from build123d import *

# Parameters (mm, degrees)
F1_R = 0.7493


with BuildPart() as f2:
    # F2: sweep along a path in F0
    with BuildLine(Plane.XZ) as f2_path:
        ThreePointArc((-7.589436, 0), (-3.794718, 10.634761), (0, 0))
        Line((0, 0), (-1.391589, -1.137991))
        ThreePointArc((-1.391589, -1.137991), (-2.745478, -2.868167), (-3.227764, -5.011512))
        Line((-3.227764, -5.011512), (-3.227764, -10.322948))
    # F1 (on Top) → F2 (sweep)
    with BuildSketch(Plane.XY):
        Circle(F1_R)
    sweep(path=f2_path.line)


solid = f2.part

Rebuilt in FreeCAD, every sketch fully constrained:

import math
import FreeCAD as App
import Part
import Sketcher
Q = App.Units.Quantity

doc = App.newDocument("Part")
body = doc.addObject("PartDesign::Body", "Body")

# Sketch on XY plane
sketch1 = body.newObject("Sketcher::SketchObject", "Sketch")
sketch1.AttachmentSupport = (doc.getObject("XY_Plane"), [""])
sketch1.MapMode = "FlatFace"
sketch1.addGeometry(Part.Circle(App.Vector(0, 0, 0), App.Vector(0, 0, 1), 0.7493), False)
sketch1.addConstraint([
    Sketcher.Constraint("Coincident", 0, 3, -1, 1),
    Sketcher.Constraint("Diameter", 0, Q("0.059 in")),
])

# Sketch on XZ plane
sketch2 = body.newObject("Sketcher::SketchObject", "Sketch001")
sketch2.AttachmentSupport = (doc.getObject("XZ_Plane"), [""])
sketch2.MapMode = "FlatFace"
sketch2.addGeometry([
    Part.ArcOfCircle(Part.Circle(App.Vector(-3.794718, 4.640361, 0), App.Vector(0, 0, 1), 5.9944), math.radians(-50.724951), math.radians(230.724951)),
    Part.LineSegment(App.Vector(0, 0, 0), App.Vector(-1.391589, -1.137991, 0)),
    Part.ArcOfCircle(Part.Circle(App.Vector(1.776033, -5.011511, 0), App.Vector(0, 0, 1), 5.003797), math.radians(129.275039), math.radians(180.000013)),
    Part.LineSegment(App.Vector(-3.227764, -5.011512, 0), App.Vector(-3.227764, -10.322948, 0)),
], False)
sketch2.addConstraint([
    Sketcher.Constraint("Tangent", 0, 1, 1, 1),
    Sketcher.Constraint("Tangent", 1, 2, 2, 1),
    Sketcher.Constraint("Tangent", 2, 2, 3, 1),
    Sketcher.Constraint("Vertical", 3),
    Sketcher.Constraint("Coincident", 0, 1, -1, 1),
    Sketcher.Constraint("PointOnObject", 0, 2, -1),
    Sketcher.Constraint("Radius", 0, Q("0.236 in")),
    Sketcher.Constraint("Radius", 2, Q("0.1969999 in")),
    Sketcher.Constraint("Distance", 1, Q("1.797649 mm")),
    Sketcher.Constraint("DistanceY", 3, 2, 3, 1, Q("5.311436 mm")),
    Sketcher.Constraint("DistanceX", 0, 3, -1, 1, Q("3.794718 mm")),
])
doc.recompute()

additivepipe = body.newObject("PartDesign::AdditivePipe", "AdditivePipe")
additivepipe.Profile = sketch1
additivepipe.Spine = (sketch2, ["Edge1", "Edge2", "Edge3", "Edge4"])

doc.recompute()
